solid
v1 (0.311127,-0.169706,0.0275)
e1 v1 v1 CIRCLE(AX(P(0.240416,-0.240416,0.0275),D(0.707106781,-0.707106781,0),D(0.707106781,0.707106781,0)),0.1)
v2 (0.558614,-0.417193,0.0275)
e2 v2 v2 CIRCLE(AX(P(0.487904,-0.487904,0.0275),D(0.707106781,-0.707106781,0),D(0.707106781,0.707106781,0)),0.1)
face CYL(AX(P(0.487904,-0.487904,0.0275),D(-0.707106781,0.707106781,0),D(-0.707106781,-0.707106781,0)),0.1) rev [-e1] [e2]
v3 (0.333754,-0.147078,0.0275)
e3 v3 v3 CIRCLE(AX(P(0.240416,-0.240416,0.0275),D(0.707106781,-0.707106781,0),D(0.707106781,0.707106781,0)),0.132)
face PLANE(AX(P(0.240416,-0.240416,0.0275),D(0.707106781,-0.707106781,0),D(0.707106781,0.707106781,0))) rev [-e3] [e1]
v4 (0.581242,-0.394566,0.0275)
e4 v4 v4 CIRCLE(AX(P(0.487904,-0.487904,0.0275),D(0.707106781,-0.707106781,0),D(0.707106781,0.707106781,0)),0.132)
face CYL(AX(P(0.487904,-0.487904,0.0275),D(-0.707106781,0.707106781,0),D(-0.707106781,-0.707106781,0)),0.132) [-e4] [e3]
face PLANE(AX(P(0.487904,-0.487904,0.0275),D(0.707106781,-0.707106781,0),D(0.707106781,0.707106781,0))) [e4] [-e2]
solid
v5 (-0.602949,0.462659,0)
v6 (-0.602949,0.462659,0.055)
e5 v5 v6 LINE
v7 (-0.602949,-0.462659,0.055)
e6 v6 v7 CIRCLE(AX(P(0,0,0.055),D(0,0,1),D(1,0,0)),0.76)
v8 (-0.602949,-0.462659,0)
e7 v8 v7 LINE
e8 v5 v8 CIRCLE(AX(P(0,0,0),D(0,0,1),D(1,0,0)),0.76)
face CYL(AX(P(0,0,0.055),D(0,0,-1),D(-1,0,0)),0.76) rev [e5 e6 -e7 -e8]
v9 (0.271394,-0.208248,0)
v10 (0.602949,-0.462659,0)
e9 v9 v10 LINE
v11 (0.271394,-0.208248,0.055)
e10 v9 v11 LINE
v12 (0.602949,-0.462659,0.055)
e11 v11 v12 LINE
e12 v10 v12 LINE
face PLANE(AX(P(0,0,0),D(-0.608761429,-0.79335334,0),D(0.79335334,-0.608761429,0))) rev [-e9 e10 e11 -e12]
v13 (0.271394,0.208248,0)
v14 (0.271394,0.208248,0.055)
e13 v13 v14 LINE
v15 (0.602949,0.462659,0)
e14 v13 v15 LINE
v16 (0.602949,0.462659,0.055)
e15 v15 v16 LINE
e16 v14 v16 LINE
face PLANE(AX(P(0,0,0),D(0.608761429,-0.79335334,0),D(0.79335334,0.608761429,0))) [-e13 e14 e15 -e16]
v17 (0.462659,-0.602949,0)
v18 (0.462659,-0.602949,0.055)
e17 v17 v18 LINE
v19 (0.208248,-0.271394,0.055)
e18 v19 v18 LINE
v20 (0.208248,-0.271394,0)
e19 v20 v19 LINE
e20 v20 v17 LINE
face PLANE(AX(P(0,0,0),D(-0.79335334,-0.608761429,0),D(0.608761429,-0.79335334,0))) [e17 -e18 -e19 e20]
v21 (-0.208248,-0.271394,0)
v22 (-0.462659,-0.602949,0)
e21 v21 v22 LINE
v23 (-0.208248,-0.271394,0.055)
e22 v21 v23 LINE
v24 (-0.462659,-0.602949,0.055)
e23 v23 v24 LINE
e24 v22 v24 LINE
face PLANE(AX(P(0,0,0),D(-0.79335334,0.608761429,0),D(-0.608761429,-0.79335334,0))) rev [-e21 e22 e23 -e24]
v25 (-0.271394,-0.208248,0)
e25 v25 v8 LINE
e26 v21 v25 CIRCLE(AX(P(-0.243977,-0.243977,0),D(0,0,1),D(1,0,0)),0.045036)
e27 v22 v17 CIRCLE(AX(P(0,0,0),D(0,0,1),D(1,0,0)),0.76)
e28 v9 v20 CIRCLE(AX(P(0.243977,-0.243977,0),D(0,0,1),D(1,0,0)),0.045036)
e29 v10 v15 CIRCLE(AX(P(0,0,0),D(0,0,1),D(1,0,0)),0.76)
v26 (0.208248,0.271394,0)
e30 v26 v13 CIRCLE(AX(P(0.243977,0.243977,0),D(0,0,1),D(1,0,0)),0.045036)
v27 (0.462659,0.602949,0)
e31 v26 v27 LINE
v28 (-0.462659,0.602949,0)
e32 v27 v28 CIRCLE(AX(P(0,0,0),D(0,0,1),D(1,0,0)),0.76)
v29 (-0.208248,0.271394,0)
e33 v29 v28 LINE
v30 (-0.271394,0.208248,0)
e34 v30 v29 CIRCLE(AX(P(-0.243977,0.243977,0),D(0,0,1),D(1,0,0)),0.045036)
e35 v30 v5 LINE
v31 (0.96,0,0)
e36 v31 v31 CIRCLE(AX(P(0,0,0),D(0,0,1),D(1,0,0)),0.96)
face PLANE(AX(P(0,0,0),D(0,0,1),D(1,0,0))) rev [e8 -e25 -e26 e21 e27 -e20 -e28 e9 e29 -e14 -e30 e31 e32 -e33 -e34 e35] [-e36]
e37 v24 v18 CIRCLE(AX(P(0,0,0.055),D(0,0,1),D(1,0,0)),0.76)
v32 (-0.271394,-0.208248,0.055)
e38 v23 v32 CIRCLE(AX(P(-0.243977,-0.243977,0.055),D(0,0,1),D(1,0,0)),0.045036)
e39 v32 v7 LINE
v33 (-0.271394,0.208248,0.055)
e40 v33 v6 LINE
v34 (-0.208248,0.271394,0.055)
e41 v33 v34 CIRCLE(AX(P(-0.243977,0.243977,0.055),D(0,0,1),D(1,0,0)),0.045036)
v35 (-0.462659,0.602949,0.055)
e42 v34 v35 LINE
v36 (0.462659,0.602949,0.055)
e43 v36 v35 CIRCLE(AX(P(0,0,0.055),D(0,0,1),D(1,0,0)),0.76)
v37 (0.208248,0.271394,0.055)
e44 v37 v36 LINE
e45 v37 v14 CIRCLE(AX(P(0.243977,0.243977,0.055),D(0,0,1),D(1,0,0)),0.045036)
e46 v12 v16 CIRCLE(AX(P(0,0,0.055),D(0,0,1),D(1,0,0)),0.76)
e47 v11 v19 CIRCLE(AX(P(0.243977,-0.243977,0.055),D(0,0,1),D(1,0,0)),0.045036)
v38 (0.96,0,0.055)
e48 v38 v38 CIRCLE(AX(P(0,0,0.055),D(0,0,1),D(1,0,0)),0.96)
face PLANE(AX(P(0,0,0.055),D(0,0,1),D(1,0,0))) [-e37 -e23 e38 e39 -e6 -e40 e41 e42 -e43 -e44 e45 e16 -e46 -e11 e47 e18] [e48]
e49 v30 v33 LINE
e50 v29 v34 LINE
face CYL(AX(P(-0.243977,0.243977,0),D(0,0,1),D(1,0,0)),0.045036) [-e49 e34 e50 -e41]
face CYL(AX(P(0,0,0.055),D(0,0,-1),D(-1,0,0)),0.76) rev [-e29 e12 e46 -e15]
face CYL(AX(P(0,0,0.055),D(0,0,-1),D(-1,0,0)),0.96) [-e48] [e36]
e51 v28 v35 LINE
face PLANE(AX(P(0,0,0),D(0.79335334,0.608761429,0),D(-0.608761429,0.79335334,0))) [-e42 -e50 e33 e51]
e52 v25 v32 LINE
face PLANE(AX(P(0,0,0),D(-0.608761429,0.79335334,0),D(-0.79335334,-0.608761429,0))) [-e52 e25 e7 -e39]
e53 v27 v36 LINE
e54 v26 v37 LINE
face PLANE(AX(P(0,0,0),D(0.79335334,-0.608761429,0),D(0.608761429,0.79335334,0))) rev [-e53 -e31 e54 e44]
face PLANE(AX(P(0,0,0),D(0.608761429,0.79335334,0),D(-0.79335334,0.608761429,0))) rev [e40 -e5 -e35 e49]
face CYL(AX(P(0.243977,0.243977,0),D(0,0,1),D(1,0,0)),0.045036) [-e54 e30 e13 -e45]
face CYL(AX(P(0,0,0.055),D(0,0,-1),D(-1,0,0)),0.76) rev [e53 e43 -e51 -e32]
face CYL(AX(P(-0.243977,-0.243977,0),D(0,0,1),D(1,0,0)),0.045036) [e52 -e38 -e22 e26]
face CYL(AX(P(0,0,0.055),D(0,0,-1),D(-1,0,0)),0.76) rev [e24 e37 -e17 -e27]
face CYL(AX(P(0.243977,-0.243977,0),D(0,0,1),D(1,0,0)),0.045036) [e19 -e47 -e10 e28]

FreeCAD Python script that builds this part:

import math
import FreeCAD as App
import Part
import Sketcher
from FreeCAD import Vector
Q = App.Units.Quantity

doc = App.newDocument("Part")
params = doc.addObject("Spreadsheet::Sheet", "Params")
for row, (alias, value) in enumerate([
    ("sketch1_diameter", "1.92 mm"),
    ("sketch1_diameter2", "1.52 mm"),
    ("pad1_length", "0.055 mm"),
    ("sketch2_radius", "0.76 mm"),
    ("pad2_length", "0.055 mm"),
    ("sketch3_diameter", "0.2 mm"),
    ("pad3_length", "0.35 mm"),
], start=1):
    params.set(f"A{row}", alias)
    params.set(f"B{row}", "=" + value)
    params.setAlias(f"B{row}", alias)

body = doc.addObject("PartDesign::Body", "Body")

# Sketch on XY plane
sketch1 = body.newObject("Sketcher::SketchObject", "Sketch")
sketch1.AttachmentSupport = (doc.getObject("XY_Plane"), [""])
sketch1.MapMode = "FlatFace"
sketch1.addGeometry(Part.Circle(Vector(0, 0, 0), Vector(0, 0, 1), 1), False)
sketch1.addGeometry(Part.Circle(Vector(0, 0, 0), Vector(0, 0, 1), 0.8), False)
sketch1.addConstraint(Sketcher.Constraint("Coincident", 0, 3, -1, 1))
sketch1.addConstraint(Sketcher.Constraint("Coincident", 1, 3, -1, 1))
sketch1.addConstraint(Sketcher.Constraint("Diameter", 0, 1.92))
sketch1.addConstraint(Sketcher.Constraint("Diameter", 1, 1.52))
sketch1.setExpression("Constraints[2]", "Params.sketch1_diameter")
sketch1.setExpression("Constraints[3]", "Params.sketch1_diameter2")
pad1 = body.newObject("PartDesign::Pad", "Pad")
pad1.Profile = sketch1
pad1.setExpression("Length", "Params.pad1_length")

# Sketch on XY plane
sketch2 = body.newObject("Sketcher::SketchObject", "Sketch001")
sketch2.AttachmentSupport = (doc.getObject("XY_Plane"), [""])
sketch2.MapMode = "FlatFace"
sketch2.addGeometry(Part.LineSegment(Vector(-0.208, 0.271, 0), Vector(-0.463, 0.603, 0)), False)
sketch2.addGeometry(Part.ArcOfCircle(Part.Circle(Vector(0, 0, 0), Vector(0, 0, 1), 0.76), math.radians(127.5), math.radians(142.5)), False)
sketch2.addGeometry(Part.LineSegment(Vector(-0.603, 0.463, 0), Vector(-0.271, 0.208, 0)), False)
sketch2.addGeometry(Part.ArcOfCircle(Part.Circle(Vector(-0.244, 0.244, 0), Vector(0, 0, 1), 0.045), math.radians(-128), math.radians(-45)), False)
sketch2.addGeometry(Part.ArcOfCircle(Part.Circle(Vector(-0.244, 0.244, 0), Vector(0, 0, 1), 0.045), math.radians(-45), math.radians(38)), False)
sketch2.addGeometry(Part.ArcOfCircle(Part.Circle(Vector(0.244, 0.244, 0), Vector(0, 0, 1), 0.045), math.radians(142), math.radians(225)), False)
sketch2.addGeometry(Part.ArcOfCircle(Part.Circle(Vector(0.244, 0.244, 0), Vector(0, 0, 1), 0.045), math.radians(-135), math.radians(-52)), False)
sketch2.addGeometry(Part.LineSegment(Vector(0.271, 0.208, 0), Vector(0.603, 0.463, 0)), False)
sketch2.addGeometry(Part.ArcOfCircle(Part.Circle(Vector(0, 0, 0), Vector(0, 0, 1), 0.76), math.radians(37.5), math.radians(52.5)), False)
sketch2.addGeometry(Part.LineSegment(Vector(0.463, 0.603, 0), Vector(0.208, 0.271, 0)), False)
sketch2.addGeometry(Part.ArcOfCircle(Part.Circle(Vector(0.244, -0.244, 0), Vector(0, 0, 1), 0.045), math.radians(52), math.radians(135)), False)
sketch2.addGeometry(Part.ArcOfCircle(Part.Circle(Vector(0.244, -0.244, 0), Vector(0, 0, 1), 0.045), math.radians(135), math.radians(218)), False)
sketch2.addGeometry(Part.LineSegment(Vector(0.208, -0.271, 0), Vector(0.463, -0.603, 0)), False)
sketch2.addGeometry(Part.ArcOfCircle(Part.Circle(Vector(0, 0, 0), Vector(0, 0, 1), 0.76), math.radians(-52.5), math.radians(-37.5)), False)
sketch2.addGeometry(Part.LineSegment(Vector(0.603, -0.463, 0), Vector(0.271, -0.208, 0)), False)
sketch2.addGeometry(Part.ArcOfCircle(Part.Circle(Vector(-0.244, -0.244, 0), Vector(0, 0, 1), 0.045), math.radians(-38), math.radians(45)), False)
sketch2.addGeometry(Part.ArcOfCircle(Part.Circle(Vector(-0.244, -0.244, 0), Vector(0, 0, 1), 0.045), math.radians(45), math.radians(128)), False)
sketch2.addGeometry(Part.LineSegment(Vector(-0.271, -0.208, 0), Vector(-0.603, -0.463, 0)), False)
sketch2.addGeometry(Part.ArcOfCircle(Part.Circle(Vector(0, 0, 0), Vector(0, 0, 1), 0.76), math.radians(-142.5), math.radians(-127.5)), False)
sketch2.addGeometry(Part.LineSegment(Vector(-0.463, -0.603, 0), Vector(-0.208, -0.271, 0)), False)
sketch2.addConstraint(Sketcher.Constraint("Coincident", 0, 2, 1, 1))
sketch2.addConstraint(Sketcher.Constraint("Coincident", 1, 2, 2, 1))
sketch2.addConstraint(Sketcher.Constraint("Tangent", 2, 2, 3, 1))
sketch2.addConstraint(Sketcher.Constraint("Tangent", 3, 2, 4, 1))
sketch2.addConstraint(Sketcher.Constraint("Tangent", 4, 2, 0, 1))
sketch2.addConstraint(Sketcher.Constraint("Tangent", 5, 2, 6, 1))
sketch2.addConstraint(Sketcher.Constraint("Tangent", 6, 2, 7, 1))
sketch2.addConstraint(Sketcher.Constraint("Coincident", 7, 2, 8, 1))
sketch2.addConstraint(Sketcher.Constraint("Coincident", 8, 2, 9, 1))
sketch2.addConstraint(Sketcher.Constraint("Tangent", 9, 2, 5, 1))
sketch2.addConstraint(Sketcher.Constraint("Tangent", 10, 2, 11, 1))
sketch2.addConstraint(Sketcher.Constraint("Tangent", 11, 2, 12, 1))
sketch2.addConstraint(Sketcher.Constraint("Coincident", 12, 2, 13, 1))
sketch2.addConstraint(Sketcher.Constraint("Coincident", 13, 2, 14, 1))
sketch2.addConstraint(Sketcher.Constraint("Tangent", 14, 2, 10, 1))
sketch2.addConstraint(Sketcher.Constraint("Tangent", 15, 2, 16, 1))
sketch2.addConstraint(Sketcher.Constraint("Tangent", 16, 2, 17, 1))
sketch2.addConstraint(Sketcher.Constraint("Coincident", 17, 2, 18, 1))
sketch2.addConstraint(Sketcher.Constraint("Coincident", 18, 2, 19, 1))
sketch2.addConstraint(Sketcher.Constraint("Tangent", 19, 2, 15, 1))
sketch2.addConstraint(Sketcher.Constraint("Coincident", 1, 3, -1, 1))
sketch2.addConstraint(Sketcher.Constraint("Coincident", 8, 3, -1, 1))
sketch2.addConstraint(Sketcher.Constraint("Coincident", 13, 3, -1, 1))
sketch2.addConstraint(Sketcher.Constraint("Coincident", 18, 3, -1, 1))
sketch2.addConstraint(Sketcher.Constraint("Equal", 3, 4))
sketch2.addConstraint(Sketcher.Constraint("Equal", 4, 5))
sketch2.addConstraint(Sketcher.Constraint("Equal", 5, 6))
sketch2.addConstraint(Sketcher.Constraint("Equal", 1, 8))
sketch2.addConstraint(Sketcher.Constraint("Equal", 6, 10))
sketch2.addConstraint(Sketcher.Constraint("Equal", 10, 11))
sketch2.addConstraint(Sketcher.Constraint("Equal", 8, 13))
sketch2.addConstraint(Sketcher.Constraint("Equal", 11, 15))
sketch2.addConstraint(Sketcher.Constraint("Equal", 15, 16))
sketch2.addConstraint(Sketcher.Constraint("Equal", 13, 18))
sketch2.addConstraint(Sketcher.Constraint("Symmetric", 3, 3, 10, 3, -1, 1))
sketch2.addConstraint(Sketcher.Constraint("Symmetric", 5, 3, 15, 3, -1, 1))
sketch2.addConstraint(Sketcher.Constraint("Symmetric", 3, 3, 5, 3, -2))
sketch2.addConstraint(Sketcher.Constraint("Perpendicular", 0, 7))
sketch2.addConstraint(Sketcher.Constraint("Perpendicular", 2, 9))
sketch2.addConstraint(Sketcher.Constraint("Perpendicular", 7, 12))
sketch2.addConstraint(Sketcher.Constraint("Perpendicular", 9, 14))
sketch2.addConstraint(Sketcher.Constraint("Perpendicular", 12, 17))
sketch2.addConstraint(Sketcher.Constraint("Perpendicular", 14, 19))
sketch2.addConstraint(Sketcher.Constraint("Horizontal", 3, 2, 5, 2))
sketch2.addConstraint(Sketcher.Constraint("Horizontal", 2, 2, 6, 2))
sketch2.addConstraint(Sketcher.Constraint("Horizontal", 10, 2, 15, 2))
sketch2.addConstraint(Sketcher.Constraint("Vertical", 5, 2, 10, 2))
sketch2.addConstraint(Sketcher.Constraint("Equal", 0, 2))
sketch2.addConstraint(Sketcher.Constraint("Radius", 1, 0.76))
sketch2.addConstraint(Sketcher.Constraint("Angle", 0, Q("127.5 deg")))
sketch2.addConstraint(Sketcher.Constraint("Radius", 3, 0.045036))
sketch2.addConstraint(Sketcher.Constraint("DistanceY", 6, 2, 8, 2, 0.394701))
sketch2.addConstraint(Sketcher.Constraint("DistanceX", 2, 2, 3, 2, 0.059262))
sketch2.setExpression("Constraints[48]", "Params.sketch2_radius")
pad2 = body.newObject("PartDesign::Pad", "Pad001")
pad2.Profile = sketch2
pad2.setExpression("Length", "Params.pad2_length")
body2 = doc.addObject("PartDesign::Body", "Body001")

# Sketch on an angled plane
sketch3 = body2.newObject("Sketcher::SketchObject", "Sketch002")
sketch3.Placement = App.Placement(Vector(0.240416, -0.240416, 0), App.Rotation(Vector(0.707106781, 0.707106781, 0), Vector(0, 0, 0.999999999), Vector(0.707106781, -0.707106781, 0), "ZXY"))
sketch3.addGeometry(Part.Circle(Vector(0, 0.03, 0), Vector(0, 0, 1), 0.13), False)
sketch3.addGeometry(Part.Circle(Vector(0, 0.03, 0), Vector(0, 0, 1), 0.1), False)
sketch3.addConstraint(Sketcher.Constraint("Coincident", 1, 3, 0, 3))
sketch3.addConstraint(Sketcher.Constraint("PointOnObject", 0, 3, -2))
sketch3.addConstraint(Sketcher.Constraint("Diameter", 1, 0.2))
sketch3.addConstraint(Sketcher.Constraint("Diameter", 0, 0.264))
sketch3.addConstraint(Sketcher.Constraint("DistanceY", -1, 1, 0, 3, 0.0275))
sketch3.setExpression("Constraints[2]", "Params.sketch3_diameter")
pad3 = body2.newObject("PartDesign::Pad", "Pad002")
pad3.Profile = sketch3
pad3.setExpression("Length", "Params.pad3_length")

doc.recompute()
